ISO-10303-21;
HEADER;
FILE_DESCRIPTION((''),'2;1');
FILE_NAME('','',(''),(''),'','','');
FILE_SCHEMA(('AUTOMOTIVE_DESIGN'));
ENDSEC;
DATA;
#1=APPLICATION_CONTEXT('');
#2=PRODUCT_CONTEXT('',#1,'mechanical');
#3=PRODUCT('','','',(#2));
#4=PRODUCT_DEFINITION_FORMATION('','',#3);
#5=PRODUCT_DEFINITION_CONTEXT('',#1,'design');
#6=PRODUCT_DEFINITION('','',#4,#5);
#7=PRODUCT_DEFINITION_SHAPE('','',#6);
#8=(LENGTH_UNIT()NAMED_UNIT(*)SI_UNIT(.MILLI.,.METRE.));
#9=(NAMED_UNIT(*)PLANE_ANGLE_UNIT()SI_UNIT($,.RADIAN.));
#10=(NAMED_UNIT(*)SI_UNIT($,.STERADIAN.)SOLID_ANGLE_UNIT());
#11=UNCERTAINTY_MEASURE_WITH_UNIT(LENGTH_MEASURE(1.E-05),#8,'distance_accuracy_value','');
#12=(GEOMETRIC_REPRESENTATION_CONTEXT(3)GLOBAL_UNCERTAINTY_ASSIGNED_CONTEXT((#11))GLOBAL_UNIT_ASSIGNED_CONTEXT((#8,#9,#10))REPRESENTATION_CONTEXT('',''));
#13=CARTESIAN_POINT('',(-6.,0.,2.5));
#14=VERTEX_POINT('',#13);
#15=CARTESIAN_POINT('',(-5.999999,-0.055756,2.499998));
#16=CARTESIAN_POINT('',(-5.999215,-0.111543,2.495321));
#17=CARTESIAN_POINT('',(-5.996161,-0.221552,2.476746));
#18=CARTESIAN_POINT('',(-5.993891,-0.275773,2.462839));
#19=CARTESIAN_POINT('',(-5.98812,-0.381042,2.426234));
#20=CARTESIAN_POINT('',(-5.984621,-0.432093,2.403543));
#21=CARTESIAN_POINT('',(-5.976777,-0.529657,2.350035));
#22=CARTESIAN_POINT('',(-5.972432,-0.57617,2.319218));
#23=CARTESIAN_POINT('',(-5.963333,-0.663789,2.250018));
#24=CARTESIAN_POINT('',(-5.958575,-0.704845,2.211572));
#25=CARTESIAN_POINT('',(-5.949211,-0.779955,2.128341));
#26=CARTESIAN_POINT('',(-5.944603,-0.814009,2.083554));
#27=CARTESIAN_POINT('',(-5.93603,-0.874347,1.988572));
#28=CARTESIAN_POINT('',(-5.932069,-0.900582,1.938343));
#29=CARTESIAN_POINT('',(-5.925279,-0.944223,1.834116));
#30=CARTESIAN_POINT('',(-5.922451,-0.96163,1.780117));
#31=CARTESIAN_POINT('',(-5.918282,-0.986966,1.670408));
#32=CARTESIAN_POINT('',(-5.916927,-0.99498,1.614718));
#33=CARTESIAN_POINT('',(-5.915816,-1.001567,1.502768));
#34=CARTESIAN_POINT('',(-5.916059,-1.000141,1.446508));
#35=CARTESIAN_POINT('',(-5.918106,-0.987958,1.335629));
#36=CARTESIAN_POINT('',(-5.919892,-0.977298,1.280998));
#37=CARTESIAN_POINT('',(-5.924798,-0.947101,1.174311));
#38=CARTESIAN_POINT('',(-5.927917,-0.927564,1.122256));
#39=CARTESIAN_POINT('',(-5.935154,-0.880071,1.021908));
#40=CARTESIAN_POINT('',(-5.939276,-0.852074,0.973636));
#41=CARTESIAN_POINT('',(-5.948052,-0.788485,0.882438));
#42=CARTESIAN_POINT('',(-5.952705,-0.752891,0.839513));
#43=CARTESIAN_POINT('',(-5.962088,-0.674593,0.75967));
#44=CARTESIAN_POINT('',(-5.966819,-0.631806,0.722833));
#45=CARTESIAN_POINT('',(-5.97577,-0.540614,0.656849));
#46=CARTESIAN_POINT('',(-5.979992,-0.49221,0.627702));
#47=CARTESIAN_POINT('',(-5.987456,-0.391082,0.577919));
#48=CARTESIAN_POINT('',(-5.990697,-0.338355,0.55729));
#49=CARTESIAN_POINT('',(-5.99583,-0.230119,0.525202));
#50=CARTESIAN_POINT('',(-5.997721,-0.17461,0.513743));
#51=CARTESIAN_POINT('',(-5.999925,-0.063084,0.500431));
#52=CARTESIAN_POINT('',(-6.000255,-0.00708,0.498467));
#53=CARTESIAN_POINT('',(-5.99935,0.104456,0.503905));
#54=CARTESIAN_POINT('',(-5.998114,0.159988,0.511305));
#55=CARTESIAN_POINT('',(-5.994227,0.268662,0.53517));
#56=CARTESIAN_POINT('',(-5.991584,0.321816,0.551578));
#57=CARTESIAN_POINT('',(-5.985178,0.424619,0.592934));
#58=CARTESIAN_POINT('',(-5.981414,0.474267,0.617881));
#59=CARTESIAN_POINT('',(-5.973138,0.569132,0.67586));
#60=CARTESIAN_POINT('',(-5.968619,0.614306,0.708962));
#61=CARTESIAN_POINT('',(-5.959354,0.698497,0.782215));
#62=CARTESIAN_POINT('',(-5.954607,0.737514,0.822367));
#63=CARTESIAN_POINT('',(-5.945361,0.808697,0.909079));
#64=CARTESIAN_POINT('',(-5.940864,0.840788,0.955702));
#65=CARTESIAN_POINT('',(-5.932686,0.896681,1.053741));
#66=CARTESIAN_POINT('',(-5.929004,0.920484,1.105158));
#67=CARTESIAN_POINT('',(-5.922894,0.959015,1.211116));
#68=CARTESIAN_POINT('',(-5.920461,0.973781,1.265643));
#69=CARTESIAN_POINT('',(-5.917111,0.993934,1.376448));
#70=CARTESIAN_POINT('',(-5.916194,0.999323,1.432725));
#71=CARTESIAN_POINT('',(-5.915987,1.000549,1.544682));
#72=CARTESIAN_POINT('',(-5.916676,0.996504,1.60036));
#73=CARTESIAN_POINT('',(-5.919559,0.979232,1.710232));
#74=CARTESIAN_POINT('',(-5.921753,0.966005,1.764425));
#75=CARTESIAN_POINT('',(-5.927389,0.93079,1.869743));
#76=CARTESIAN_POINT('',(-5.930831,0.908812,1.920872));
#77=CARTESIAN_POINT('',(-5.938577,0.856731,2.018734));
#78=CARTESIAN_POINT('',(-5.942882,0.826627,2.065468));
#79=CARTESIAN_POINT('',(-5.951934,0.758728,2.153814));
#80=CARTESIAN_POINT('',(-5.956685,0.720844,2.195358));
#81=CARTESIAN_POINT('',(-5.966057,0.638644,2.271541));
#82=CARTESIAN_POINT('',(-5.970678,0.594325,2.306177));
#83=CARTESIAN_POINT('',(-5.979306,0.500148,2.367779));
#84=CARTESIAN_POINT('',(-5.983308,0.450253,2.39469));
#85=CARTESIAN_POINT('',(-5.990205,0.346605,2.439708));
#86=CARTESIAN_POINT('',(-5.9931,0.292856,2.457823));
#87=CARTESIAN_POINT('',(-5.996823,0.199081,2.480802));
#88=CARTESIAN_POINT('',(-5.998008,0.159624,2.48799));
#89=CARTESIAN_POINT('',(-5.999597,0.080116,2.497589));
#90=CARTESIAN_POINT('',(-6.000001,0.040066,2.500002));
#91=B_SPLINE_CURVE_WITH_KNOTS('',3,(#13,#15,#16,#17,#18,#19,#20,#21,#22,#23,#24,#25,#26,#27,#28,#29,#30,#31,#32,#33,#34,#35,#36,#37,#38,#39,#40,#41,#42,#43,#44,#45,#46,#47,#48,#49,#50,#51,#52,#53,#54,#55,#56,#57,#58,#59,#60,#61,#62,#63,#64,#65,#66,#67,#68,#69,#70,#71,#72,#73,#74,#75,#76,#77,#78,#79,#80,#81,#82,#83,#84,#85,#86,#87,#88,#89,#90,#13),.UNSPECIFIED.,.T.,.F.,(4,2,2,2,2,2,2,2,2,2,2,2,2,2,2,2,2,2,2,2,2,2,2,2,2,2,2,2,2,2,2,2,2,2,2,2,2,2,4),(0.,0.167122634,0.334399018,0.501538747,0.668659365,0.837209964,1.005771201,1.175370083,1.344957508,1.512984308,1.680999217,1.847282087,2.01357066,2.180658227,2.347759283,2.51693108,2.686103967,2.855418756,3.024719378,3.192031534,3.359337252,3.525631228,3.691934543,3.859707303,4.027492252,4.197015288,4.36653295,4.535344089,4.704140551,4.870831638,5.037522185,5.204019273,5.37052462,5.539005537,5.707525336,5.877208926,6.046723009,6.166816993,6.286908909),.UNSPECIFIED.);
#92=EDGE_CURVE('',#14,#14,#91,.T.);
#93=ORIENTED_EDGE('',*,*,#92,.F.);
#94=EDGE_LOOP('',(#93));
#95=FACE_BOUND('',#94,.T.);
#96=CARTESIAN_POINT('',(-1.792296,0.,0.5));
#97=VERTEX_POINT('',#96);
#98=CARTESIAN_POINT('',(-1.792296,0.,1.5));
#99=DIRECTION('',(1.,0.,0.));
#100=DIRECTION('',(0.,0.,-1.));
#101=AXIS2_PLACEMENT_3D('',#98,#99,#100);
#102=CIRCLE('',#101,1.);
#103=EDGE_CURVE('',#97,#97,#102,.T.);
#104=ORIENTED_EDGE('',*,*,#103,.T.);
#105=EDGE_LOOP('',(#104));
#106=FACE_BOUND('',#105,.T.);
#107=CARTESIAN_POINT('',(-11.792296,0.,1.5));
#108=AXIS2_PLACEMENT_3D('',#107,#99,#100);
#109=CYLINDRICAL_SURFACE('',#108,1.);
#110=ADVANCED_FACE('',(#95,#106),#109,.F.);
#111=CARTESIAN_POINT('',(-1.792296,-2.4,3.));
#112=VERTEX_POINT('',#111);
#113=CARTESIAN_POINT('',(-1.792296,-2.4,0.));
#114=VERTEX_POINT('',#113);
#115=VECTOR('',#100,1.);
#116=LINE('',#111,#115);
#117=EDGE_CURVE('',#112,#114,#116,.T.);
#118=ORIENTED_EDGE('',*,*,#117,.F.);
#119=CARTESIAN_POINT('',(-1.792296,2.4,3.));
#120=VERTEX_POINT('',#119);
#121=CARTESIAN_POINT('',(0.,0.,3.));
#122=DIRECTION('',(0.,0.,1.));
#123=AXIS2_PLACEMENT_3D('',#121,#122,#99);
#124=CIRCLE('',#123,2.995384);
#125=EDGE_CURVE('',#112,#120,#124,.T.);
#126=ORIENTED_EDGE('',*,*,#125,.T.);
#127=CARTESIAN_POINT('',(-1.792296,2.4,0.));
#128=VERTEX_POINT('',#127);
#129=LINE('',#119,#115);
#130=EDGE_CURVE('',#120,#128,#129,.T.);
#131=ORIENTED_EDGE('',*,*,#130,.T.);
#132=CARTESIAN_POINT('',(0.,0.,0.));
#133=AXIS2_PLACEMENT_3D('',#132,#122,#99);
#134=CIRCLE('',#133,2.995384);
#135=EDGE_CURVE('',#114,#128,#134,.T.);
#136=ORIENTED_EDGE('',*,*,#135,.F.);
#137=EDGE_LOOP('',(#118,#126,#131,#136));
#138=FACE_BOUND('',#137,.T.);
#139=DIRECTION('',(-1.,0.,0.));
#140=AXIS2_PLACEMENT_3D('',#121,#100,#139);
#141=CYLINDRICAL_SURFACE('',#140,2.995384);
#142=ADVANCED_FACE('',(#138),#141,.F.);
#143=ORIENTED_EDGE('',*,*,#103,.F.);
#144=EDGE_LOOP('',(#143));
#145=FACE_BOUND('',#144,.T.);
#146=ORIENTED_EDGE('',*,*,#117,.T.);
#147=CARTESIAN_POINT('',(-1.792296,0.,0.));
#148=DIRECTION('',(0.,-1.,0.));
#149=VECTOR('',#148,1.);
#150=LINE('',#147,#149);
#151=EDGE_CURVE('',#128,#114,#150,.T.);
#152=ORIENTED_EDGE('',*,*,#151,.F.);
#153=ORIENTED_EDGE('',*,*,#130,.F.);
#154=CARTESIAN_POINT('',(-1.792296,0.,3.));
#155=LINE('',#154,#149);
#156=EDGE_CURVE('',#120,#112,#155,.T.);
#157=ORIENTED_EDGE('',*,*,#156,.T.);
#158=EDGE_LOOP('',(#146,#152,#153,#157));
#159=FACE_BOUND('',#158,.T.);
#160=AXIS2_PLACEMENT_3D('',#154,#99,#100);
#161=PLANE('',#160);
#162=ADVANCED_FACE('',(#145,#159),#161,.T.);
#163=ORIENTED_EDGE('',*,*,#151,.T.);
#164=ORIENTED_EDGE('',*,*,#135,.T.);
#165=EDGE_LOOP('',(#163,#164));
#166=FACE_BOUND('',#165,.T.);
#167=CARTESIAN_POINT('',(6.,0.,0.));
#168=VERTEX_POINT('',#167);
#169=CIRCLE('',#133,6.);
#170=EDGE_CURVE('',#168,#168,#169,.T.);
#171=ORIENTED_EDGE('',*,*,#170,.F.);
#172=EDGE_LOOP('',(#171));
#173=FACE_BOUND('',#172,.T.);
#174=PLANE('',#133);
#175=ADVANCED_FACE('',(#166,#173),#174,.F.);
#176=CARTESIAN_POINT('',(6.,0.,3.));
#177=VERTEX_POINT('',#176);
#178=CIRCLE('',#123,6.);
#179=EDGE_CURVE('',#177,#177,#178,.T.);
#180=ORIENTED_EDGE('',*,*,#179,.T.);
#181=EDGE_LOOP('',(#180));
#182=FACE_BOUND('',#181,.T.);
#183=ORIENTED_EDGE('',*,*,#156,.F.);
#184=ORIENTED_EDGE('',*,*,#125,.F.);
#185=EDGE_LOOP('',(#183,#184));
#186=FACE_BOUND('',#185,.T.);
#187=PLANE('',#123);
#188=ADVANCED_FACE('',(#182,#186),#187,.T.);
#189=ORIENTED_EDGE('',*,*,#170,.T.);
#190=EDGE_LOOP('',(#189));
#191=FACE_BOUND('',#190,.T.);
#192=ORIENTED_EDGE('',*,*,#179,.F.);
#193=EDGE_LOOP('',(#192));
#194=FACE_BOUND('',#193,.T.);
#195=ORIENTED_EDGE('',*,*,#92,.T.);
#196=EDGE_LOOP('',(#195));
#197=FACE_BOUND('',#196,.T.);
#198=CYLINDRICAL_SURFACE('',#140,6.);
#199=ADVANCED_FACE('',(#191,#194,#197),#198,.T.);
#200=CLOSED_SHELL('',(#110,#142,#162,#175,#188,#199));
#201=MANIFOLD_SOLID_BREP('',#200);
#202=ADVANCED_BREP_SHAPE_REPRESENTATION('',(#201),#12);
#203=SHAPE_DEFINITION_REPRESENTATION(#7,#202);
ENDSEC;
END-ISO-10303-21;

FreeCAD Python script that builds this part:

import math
import FreeCAD as App
import Part
import Sketcher
from FreeCAD import Vector

doc = App.newDocument("Part")
body = doc.addObject("PartDesign::Body", "Body")

# Sketch on XY plane
sketch1 = body.newObject("Sketcher::SketchObject", "Sketch")
sketch1.AttachmentSupport = (doc.getObject("XY_Plane"), [""])
sketch1.MapMode = "FlatFace"
sketch1.addGeometry([
    Part.Circle(Vector(0, 0, 0), Vector(0, 0, 1), 6),
    Part.ArcOfCircle(Part.Circle(Vector(0, 0, 0), Vector(0, 0, 1), 2.995384), math.radians(-126.752012), math.radians(126.752012)),
    Part.LineSegment(Vector(-1.792296, -2.4, 0), Vector(-1.792296, 2.4, 0)),
], False)
sketch1.addConstraint([
    Sketcher.Constraint("Coincident", 1, 1, 2, 1),
    Sketcher.Constraint("Coincident", 2, 2, 1, 2),
    Sketcher.Constraint("Vertical", 2),
    Sketcher.Constraint("Coincident", 0, 3, -1, 1),
    Sketcher.Constraint("Coincident", 1, 3, -1, 1),
    Sketcher.Constraint("Diameter", 0, 12.0),
    Sketcher.Constraint("DistanceY", 2, 1, 2, 2, 4.8),
    Sketcher.Constraint("Radius", 1, 2.995384),
])
pad1 = body.newObject("PartDesign::Pad", "Pad")
pad1.Profile = sketch1
pad1.Length = 3

# Sketch on YZ plane
sketch2 = body.newObject("Sketcher::SketchObject", "Sketch001")
sketch2.AttachmentSupport = (doc.getObject("YZ_Plane"), [""])
sketch2.MapMode = "FlatFace"
sketch2.AttachmentOffset = App.Placement(Vector(0, 0, -1.792296), App.Rotation())
sketch2.addGeometry(Part.Circle(Vector(0, 1.5, 0), Vector(0, 0, 1), 1), False)
sketch2.addConstraint([
    Sketcher.Constraint("PointOnObject", 0, 3, -2),
    Sketcher.Constraint("Diameter", 0, 2.0),
    Sketcher.Constraint("DistanceY", -1, 1, 0, 3, 1.5),
])
pocket1 = body.newObject("PartDesign::Pocket", "Pocket")
pocket1.Profile = sketch2
pocket1.Length = 10

doc.recompute()
